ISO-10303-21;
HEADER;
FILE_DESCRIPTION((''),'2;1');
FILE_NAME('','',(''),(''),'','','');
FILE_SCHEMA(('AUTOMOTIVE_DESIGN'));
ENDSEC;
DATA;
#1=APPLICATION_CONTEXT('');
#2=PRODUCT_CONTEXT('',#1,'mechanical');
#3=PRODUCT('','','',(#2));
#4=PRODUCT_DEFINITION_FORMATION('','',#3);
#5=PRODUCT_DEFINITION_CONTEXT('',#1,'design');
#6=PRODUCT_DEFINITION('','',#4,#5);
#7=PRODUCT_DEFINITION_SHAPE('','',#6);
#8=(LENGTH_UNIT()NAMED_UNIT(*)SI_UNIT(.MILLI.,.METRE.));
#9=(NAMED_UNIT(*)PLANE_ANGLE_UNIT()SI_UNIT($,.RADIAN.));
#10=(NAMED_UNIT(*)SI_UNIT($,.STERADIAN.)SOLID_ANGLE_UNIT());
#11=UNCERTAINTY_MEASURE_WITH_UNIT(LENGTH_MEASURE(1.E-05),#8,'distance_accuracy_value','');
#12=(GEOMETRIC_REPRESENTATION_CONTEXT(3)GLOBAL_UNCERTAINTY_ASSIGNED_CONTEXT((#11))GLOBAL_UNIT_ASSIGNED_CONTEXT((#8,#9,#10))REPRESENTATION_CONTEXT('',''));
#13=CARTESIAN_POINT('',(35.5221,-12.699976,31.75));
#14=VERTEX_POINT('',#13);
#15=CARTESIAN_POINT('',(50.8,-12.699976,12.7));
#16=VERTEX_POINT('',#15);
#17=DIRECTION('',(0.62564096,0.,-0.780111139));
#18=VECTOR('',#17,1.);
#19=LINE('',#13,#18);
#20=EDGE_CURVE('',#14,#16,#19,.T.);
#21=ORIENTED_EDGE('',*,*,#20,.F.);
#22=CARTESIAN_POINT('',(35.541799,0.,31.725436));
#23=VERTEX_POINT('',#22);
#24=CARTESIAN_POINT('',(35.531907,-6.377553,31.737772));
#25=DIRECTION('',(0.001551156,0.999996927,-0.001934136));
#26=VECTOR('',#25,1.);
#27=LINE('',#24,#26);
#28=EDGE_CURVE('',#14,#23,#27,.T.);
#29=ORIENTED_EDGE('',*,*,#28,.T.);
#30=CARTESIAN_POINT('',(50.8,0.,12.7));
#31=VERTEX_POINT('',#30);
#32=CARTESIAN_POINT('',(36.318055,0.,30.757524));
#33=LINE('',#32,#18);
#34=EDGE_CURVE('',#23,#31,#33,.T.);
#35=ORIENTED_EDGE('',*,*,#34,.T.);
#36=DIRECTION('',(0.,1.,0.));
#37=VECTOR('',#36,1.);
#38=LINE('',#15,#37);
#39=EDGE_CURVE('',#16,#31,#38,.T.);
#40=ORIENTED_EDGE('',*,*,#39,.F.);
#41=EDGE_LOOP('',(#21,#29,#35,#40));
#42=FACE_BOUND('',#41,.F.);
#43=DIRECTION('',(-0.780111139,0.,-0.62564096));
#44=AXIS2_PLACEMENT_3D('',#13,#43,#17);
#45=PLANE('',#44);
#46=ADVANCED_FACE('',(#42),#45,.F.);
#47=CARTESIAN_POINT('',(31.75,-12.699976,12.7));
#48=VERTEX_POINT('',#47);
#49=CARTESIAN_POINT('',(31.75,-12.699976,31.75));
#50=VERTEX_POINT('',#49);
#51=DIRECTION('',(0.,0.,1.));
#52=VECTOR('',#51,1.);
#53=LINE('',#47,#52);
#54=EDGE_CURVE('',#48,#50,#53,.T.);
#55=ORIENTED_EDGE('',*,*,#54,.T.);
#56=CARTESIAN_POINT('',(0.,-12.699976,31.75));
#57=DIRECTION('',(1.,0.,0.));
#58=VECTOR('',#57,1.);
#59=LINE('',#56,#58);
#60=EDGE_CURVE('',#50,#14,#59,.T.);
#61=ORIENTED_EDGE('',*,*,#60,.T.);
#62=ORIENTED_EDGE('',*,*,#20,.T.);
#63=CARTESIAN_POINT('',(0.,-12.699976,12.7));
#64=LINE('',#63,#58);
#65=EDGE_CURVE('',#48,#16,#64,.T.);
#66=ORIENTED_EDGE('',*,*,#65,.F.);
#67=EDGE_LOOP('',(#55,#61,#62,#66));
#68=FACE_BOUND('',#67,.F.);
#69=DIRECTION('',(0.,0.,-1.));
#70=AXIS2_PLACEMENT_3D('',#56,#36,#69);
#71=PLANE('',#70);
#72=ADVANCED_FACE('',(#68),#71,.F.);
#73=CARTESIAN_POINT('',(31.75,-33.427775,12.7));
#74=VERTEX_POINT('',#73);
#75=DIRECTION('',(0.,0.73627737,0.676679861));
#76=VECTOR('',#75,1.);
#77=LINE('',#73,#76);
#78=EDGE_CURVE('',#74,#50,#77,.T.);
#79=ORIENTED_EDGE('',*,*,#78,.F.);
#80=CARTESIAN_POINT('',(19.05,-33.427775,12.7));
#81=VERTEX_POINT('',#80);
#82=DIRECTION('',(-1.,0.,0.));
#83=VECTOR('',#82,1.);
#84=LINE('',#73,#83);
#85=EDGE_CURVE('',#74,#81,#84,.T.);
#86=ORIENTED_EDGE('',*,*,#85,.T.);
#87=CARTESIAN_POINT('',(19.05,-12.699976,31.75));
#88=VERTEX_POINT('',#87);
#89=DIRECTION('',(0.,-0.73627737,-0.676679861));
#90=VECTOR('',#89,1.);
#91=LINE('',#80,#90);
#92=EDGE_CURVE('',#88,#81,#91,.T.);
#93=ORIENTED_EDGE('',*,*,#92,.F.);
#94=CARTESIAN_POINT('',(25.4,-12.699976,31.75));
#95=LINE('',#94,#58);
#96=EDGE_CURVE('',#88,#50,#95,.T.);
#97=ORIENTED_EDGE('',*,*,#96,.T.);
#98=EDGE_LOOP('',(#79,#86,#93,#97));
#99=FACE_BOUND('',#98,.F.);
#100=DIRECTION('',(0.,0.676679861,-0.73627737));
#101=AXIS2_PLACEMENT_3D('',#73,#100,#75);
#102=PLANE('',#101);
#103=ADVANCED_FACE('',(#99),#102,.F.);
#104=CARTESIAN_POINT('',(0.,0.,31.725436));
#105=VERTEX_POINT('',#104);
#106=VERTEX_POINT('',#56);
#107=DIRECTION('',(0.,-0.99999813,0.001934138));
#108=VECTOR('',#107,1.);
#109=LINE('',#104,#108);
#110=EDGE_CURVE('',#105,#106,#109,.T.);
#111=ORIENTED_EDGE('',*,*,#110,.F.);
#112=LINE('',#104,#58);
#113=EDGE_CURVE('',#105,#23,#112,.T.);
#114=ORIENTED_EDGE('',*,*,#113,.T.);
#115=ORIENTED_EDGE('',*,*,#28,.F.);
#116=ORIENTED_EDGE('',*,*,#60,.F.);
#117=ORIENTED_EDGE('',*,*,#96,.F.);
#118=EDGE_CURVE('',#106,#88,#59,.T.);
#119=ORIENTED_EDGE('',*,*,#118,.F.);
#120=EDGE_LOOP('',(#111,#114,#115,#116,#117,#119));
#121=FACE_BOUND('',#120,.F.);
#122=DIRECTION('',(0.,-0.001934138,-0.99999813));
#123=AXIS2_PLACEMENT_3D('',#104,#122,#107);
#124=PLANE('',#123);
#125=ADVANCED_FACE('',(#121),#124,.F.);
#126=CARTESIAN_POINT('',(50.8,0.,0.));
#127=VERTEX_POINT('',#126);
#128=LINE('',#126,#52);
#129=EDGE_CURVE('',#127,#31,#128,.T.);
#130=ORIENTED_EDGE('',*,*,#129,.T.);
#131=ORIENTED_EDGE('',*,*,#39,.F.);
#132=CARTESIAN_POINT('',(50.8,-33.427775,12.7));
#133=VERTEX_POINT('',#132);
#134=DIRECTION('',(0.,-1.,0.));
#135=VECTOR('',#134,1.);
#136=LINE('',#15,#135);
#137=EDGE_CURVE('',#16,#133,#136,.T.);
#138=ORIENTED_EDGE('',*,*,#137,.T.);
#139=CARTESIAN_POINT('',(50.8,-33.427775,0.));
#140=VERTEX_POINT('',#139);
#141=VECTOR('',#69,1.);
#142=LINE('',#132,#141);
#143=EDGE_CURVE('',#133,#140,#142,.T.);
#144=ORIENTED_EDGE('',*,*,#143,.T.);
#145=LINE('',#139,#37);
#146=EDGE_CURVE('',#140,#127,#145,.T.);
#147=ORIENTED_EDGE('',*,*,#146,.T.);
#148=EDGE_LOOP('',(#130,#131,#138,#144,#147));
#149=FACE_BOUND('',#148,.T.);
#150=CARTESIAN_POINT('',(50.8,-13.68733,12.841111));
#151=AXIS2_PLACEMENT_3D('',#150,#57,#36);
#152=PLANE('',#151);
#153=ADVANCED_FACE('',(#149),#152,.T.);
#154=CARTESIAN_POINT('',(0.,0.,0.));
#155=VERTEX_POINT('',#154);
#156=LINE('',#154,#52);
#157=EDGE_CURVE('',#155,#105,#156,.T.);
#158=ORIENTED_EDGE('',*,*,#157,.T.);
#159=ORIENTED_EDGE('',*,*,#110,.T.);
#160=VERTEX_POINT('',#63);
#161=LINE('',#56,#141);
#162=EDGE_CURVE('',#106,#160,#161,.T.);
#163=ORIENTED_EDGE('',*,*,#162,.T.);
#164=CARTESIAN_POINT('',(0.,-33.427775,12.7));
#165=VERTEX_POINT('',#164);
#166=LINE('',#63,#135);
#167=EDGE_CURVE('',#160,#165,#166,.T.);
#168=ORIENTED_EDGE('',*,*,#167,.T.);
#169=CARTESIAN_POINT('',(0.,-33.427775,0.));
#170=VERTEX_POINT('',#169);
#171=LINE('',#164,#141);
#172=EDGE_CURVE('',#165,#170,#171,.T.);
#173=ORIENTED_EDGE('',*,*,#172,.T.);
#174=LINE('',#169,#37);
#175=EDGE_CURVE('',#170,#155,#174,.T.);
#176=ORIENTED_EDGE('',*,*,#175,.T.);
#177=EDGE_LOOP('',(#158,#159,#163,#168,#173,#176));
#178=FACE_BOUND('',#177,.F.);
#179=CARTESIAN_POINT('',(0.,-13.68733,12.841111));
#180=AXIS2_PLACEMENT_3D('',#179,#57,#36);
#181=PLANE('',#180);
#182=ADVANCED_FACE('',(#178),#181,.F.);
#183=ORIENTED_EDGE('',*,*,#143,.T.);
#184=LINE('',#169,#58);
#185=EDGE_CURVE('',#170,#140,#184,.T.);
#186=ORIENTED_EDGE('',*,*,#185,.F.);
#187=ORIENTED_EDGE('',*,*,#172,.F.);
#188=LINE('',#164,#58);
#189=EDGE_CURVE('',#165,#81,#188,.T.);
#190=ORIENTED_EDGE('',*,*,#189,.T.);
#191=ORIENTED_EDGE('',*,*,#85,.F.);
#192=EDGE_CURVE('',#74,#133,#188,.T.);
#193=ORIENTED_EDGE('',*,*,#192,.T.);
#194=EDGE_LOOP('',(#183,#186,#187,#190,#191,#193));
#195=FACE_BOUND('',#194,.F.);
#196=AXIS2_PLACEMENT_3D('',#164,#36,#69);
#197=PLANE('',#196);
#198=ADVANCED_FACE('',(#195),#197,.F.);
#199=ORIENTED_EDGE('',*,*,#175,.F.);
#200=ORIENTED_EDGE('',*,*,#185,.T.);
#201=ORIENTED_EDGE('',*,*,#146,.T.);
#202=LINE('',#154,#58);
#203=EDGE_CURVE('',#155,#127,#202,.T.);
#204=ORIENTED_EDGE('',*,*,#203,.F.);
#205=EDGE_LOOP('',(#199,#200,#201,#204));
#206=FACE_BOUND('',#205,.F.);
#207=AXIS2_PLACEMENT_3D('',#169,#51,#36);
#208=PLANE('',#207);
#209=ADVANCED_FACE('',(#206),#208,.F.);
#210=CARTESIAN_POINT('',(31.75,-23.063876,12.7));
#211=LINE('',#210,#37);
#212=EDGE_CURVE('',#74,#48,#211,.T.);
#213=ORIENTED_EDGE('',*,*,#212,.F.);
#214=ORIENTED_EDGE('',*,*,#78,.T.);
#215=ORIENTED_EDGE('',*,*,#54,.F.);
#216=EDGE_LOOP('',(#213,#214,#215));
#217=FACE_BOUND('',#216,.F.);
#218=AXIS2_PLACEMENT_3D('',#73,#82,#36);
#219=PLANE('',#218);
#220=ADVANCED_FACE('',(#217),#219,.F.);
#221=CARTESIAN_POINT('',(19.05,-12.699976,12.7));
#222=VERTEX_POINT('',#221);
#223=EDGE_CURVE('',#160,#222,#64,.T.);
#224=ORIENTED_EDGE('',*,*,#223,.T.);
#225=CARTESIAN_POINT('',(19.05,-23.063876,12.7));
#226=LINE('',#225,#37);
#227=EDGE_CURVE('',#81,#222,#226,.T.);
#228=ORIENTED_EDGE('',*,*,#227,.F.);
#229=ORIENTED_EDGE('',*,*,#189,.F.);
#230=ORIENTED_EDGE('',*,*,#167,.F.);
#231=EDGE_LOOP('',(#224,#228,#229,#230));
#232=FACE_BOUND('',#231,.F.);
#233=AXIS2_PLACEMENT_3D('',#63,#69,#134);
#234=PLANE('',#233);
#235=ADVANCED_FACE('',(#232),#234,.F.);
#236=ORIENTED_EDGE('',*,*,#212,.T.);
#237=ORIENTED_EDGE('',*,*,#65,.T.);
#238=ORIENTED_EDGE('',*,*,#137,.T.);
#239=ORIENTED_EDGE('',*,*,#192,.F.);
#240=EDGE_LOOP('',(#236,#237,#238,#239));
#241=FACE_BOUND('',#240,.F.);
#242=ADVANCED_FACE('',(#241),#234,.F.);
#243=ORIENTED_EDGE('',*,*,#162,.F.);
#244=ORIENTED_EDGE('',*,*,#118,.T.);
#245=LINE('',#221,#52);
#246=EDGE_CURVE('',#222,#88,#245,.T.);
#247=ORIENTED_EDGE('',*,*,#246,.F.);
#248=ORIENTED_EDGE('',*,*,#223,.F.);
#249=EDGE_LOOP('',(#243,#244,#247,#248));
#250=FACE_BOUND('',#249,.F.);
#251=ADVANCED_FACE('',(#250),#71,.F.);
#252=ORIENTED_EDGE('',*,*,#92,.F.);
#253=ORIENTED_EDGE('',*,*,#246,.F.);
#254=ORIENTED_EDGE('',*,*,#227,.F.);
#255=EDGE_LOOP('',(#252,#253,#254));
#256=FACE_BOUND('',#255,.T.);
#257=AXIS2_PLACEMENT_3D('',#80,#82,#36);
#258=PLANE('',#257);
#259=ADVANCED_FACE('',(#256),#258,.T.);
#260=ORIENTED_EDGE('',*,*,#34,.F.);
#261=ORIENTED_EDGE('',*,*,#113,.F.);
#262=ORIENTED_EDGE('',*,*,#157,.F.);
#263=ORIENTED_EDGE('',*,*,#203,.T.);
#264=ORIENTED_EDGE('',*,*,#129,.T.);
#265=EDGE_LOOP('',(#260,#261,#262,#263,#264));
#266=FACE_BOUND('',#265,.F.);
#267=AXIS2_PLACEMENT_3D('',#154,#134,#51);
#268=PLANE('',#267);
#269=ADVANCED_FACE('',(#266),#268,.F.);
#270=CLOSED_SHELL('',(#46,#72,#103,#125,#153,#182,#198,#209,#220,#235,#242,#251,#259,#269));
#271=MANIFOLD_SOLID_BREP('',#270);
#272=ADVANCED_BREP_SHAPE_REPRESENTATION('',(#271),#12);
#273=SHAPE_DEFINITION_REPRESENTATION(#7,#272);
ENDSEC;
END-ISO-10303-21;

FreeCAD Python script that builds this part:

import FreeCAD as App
import Part
import Sketcher
from FreeCAD import Vector
Q = App.Units.Quantity

doc = App.newDocument("Part")
body = doc.addObject("PartDesign::Body", "Body")

sketch1 = body.newObject("Sketcher::SketchObject", "Sketch")
sketch1.AttachmentSupport = (doc.getObject("YZ_Plane"), [""])
sketch1.MapMode = "FlatFace"
sketch1.addGeometry(Part.LineSegment(Vector(0, 0, 0), Vector(0, 32, 0)), False)
sketch1.addGeometry(Part.LineSegment(Vector(0, 32, 0), Vector(-13, 32, 0)), False)
sketch1.addGeometry(Part.LineSegment(Vector(-13, 32, 0), Vector(-13, 13, 0)), False)
sketch1.addGeometry(Part.LineSegment(Vector(-13, 13, 0), Vector(-33, 13, 0)), False)
sketch1.addGeometry(Part.LineSegment(Vector(-33, 13, 0), Vector(-33, 0, 0)), False)
sketch1.addGeometry(Part.LineSegment(Vector(-33, 0, 0), Vector(0, 0, 0)), False)
sketch1.addConstraint(Sketcher.Constraint("Coincident", 0, 2, 1, 1))
sketch1.addConstraint(Sketcher.Constraint("Coincident", 1, 2, 2, 1))
sketch1.addConstraint(Sketcher.Constraint("Coincident", 2, 2, 3, 1))
sketch1.addConstraint(Sketcher.Constraint("Coincident", 3, 2, 4, 1))
sketch1.addConstraint(Sketcher.Constraint("Coincident", 4, 2, 5, 1))
sketch1.addConstraint(Sketcher.Constraint("Coincident", 5, 2, 0, 1))
sketch1.addConstraint(Sketcher.Constraint("Vertical", 0))
sketch1.addConstraint(Sketcher.Constraint("Vertical", 2))
sketch1.addConstraint(Sketcher.Constraint("Horizontal", 3))
sketch1.addConstraint(Sketcher.Constraint("Vertical", 4))
sketch1.addConstraint(Sketcher.Constraint("Horizontal", 5))
sketch1.addConstraint(Sketcher.Constraint("Coincident", 5, 2, -1, 1))
sketch1.addConstraint(Sketcher.Constraint("DistanceY", 4, 2, 4, 1, Q("0.5 in")))
sketch1.addConstraint(Sketcher.Constraint("Distance", 1, Q("0.5 in")))
sketch1.addConstraint(Sketcher.Constraint("DistanceY", 2, 2, 2, 1, Q("0.75 in")))
sketch1.addConstraint(Sketcher.Constraint("DistanceX", 3, 2, 3, 1, Q("20.727799 mm")))
sketch1.addConstraint(Sketcher.Constraint("DistanceY", 0, 1, 0, 2, Q("31.725436 mm")))
pad1 = body.newObject("PartDesign::Pad", "Pad")
pad1.Profile = sketch1
pad1.Length = Q("2 in")

sketch2 = body.newObject("Sketcher::SketchObject", "Sketch001")
sketch2.AttachmentSupport = (doc.getObject("XZ_Plane"), [""])
sketch2.MapMode = "FlatFace"
sketch2.AttachmentOffset = App.Placement(Vector(0, 0, 12.699976), App.Rotation())
sketch2.addGeometry(Part.LineSegment(Vector(51, 32, 0), Vector(36, 32, 0)), False)
sketch2.addGeometry(Part.LineSegment(Vector(36, 32, 0), Vector(51, 13, 0)), False)
sketch2.addGeometry(Part.LineSegment(Vector(51, 13, 0), Vector(51, 32, 0)), False)
sketch2.addConstraint(Sketcher.Constraint("Coincident", 0, 2, 1, 1))
sketch2.addConstraint(Sketcher.Constraint("Coincident", 1, 2, 2, 1))
sketch2.addConstraint(Sketcher.Constraint("Coincident", 2, 2, 0, 1))
sketch2.addConstraint(Sketcher.Constraint("Horizontal", 0))
sketch2.addConstraint(Sketcher.Constraint("Vertical", 2))
sketch2.addConstraint(Sketcher.Constraint("DistanceX", -1, 1, 1, 2, Q("2 in")))
sketch2.addConstraint(Sketcher.Constraint("DistanceY", 2, 1, 2, 2, Q("0.75 in")))
sketch2.addConstraint(Sketcher.Constraint("DistanceY", -1, 1, 1, 2, Q("0.5 in")))
sketch2.addConstraint(Sketcher.Constraint("DistanceX", 0, 2, 0, 1, Q("15.2779 mm")))
pocket1 = body.newObject("PartDesign::Pocket", "Pocket")
pocket1.Profile = sketch2
pocket1.Length = Q("1 in")

sketch3 = body.newObject("Sketcher::SketchObject", "Sketch002")
sketch3.AttachmentSupport = (doc.getObject("XY_Plane"), [""])
sketch3.MapMode = "FlatFace"
sketch3.AttachmentOffset = App.Placement(Vector(0, 0, 0.5 * 25.4), App.Rotation())
sketch3.addGeometry(Part.LineSegment(Vector(19, -13, 0), Vector(19, -33, 0)), False)
sketch3.addGeometry(Part.LineSegment(Vector(19, -33, 0), Vector(32, -33, 0)), False)
sketch3.addGeometry(Part.LineSegment(Vector(32, -33, 0), Vector(32, -13, 0)), False)
sketch3.addGeometry(Part.LineSegment(Vector(32, -13, 0), Vector(19, -13, 0)), False)
sketch3.addConstraint(Sketcher.Constraint("Coincident", 0, 2, 1, 1))
sketch3.addConstraint(Sketcher.Constraint("Coincident", 1, 2, 2, 1))
sketch3.addConstraint(Sketcher.Constraint("Coincident", 2, 2, 3, 1))
sketch3.addConstraint(Sketcher.Constraint("Coincident", 3, 2, 0, 1))
sketch3.addConstraint(Sketcher.Constraint("Vertical", 0))
sketch3.addConstraint(Sketcher.Constraint("Horizontal", 1))
sketch3.addConstraint(Sketcher.Constraint("Vertical", 2))
sketch3.addConstraint(Sketcher.Constraint("Horizontal", 3))
sketch3.addConstraint(Sketcher.Constraint("DistanceX", 1, 1, 1, 2, Q("0.5 in")))
sketch3.addConstraint(Sketcher.Constraint("DistanceX", -1, 1, 0, 2, Q("0.75 in")))
sketch3.addConstraint(Sketcher.Constraint("DistanceY", 0, 2, 0, 1, Q("20.727799 mm")))
sketch3.addConstraint(Sketcher.Constraint("DistanceY", 0, 2, -1, 1, Q("33.427775 mm")))
pad2 = body.newObject("PartDesign::Pad", "Pad001")
pad2.Profile = sketch3
pad2.Length = Q("0.75 in")

sketch4 = body.newObject("Sketcher::SketchObject", "Sketch003")
sketch4.AttachmentSupport = (doc.getObject("YZ_Plane"), [""])
sketch4.MapMode = "FlatFace"
sketch4.AttachmentOffset = App.Placement(Vector(0, 0, 1.25 * 25.4), App.Rotation())
sketch4.addGeometry(Part.LineSegment(Vector(-33, 32, 0), Vector(-33, 13, 0)), False)
sketch4.addGeometry(Part.LineSegment(Vector(-33, 13, 0), Vector(-13, 32, 0)), False)
sketch4.addGeometry(Part.LineSegment(Vector(-13, 32, 0), Vector(-33, 32, 0)), False)
sketch4.addConstraint(Sketcher.Constraint("Coincident", 0, 2, 1, 1))
sketch4.addConstraint(Sketcher.Constraint("Coincident", 1, 2, 2, 1))
sketch4.addConstraint(Sketcher.Constraint("Coincident", 2, 2, 0, 1))
sketch4.addConstraint(Sketcher.Constraint("Vertical", 0))
sketch4.addConstraint(Sketcher.Constraint("Horizontal", 2))
sketch4.addConstraint(Sketcher.Constraint("DistanceY", 0, 2, 0, 1, Q("0.75 in")))
sketch4.addConstraint(Sketcher.Constraint("DistanceY", -1, 1, 0, 2, Q("0.5 in")))
sketch4.addConstraint(Sketcher.Constraint("DistanceX", 2, 2, 2, 1, Q("20.727799 mm")))
sketch4.addConstraint(Sketcher.Constraint("DistanceX", 0, 2, -1, 1, Q("33.427775 mm")))
pocket2 = body.newObject("PartDesign::Pocket", "Pocket001")
pocket2.Profile = sketch4
pocket2.Length = Q("1 in")

doc.recompute()
